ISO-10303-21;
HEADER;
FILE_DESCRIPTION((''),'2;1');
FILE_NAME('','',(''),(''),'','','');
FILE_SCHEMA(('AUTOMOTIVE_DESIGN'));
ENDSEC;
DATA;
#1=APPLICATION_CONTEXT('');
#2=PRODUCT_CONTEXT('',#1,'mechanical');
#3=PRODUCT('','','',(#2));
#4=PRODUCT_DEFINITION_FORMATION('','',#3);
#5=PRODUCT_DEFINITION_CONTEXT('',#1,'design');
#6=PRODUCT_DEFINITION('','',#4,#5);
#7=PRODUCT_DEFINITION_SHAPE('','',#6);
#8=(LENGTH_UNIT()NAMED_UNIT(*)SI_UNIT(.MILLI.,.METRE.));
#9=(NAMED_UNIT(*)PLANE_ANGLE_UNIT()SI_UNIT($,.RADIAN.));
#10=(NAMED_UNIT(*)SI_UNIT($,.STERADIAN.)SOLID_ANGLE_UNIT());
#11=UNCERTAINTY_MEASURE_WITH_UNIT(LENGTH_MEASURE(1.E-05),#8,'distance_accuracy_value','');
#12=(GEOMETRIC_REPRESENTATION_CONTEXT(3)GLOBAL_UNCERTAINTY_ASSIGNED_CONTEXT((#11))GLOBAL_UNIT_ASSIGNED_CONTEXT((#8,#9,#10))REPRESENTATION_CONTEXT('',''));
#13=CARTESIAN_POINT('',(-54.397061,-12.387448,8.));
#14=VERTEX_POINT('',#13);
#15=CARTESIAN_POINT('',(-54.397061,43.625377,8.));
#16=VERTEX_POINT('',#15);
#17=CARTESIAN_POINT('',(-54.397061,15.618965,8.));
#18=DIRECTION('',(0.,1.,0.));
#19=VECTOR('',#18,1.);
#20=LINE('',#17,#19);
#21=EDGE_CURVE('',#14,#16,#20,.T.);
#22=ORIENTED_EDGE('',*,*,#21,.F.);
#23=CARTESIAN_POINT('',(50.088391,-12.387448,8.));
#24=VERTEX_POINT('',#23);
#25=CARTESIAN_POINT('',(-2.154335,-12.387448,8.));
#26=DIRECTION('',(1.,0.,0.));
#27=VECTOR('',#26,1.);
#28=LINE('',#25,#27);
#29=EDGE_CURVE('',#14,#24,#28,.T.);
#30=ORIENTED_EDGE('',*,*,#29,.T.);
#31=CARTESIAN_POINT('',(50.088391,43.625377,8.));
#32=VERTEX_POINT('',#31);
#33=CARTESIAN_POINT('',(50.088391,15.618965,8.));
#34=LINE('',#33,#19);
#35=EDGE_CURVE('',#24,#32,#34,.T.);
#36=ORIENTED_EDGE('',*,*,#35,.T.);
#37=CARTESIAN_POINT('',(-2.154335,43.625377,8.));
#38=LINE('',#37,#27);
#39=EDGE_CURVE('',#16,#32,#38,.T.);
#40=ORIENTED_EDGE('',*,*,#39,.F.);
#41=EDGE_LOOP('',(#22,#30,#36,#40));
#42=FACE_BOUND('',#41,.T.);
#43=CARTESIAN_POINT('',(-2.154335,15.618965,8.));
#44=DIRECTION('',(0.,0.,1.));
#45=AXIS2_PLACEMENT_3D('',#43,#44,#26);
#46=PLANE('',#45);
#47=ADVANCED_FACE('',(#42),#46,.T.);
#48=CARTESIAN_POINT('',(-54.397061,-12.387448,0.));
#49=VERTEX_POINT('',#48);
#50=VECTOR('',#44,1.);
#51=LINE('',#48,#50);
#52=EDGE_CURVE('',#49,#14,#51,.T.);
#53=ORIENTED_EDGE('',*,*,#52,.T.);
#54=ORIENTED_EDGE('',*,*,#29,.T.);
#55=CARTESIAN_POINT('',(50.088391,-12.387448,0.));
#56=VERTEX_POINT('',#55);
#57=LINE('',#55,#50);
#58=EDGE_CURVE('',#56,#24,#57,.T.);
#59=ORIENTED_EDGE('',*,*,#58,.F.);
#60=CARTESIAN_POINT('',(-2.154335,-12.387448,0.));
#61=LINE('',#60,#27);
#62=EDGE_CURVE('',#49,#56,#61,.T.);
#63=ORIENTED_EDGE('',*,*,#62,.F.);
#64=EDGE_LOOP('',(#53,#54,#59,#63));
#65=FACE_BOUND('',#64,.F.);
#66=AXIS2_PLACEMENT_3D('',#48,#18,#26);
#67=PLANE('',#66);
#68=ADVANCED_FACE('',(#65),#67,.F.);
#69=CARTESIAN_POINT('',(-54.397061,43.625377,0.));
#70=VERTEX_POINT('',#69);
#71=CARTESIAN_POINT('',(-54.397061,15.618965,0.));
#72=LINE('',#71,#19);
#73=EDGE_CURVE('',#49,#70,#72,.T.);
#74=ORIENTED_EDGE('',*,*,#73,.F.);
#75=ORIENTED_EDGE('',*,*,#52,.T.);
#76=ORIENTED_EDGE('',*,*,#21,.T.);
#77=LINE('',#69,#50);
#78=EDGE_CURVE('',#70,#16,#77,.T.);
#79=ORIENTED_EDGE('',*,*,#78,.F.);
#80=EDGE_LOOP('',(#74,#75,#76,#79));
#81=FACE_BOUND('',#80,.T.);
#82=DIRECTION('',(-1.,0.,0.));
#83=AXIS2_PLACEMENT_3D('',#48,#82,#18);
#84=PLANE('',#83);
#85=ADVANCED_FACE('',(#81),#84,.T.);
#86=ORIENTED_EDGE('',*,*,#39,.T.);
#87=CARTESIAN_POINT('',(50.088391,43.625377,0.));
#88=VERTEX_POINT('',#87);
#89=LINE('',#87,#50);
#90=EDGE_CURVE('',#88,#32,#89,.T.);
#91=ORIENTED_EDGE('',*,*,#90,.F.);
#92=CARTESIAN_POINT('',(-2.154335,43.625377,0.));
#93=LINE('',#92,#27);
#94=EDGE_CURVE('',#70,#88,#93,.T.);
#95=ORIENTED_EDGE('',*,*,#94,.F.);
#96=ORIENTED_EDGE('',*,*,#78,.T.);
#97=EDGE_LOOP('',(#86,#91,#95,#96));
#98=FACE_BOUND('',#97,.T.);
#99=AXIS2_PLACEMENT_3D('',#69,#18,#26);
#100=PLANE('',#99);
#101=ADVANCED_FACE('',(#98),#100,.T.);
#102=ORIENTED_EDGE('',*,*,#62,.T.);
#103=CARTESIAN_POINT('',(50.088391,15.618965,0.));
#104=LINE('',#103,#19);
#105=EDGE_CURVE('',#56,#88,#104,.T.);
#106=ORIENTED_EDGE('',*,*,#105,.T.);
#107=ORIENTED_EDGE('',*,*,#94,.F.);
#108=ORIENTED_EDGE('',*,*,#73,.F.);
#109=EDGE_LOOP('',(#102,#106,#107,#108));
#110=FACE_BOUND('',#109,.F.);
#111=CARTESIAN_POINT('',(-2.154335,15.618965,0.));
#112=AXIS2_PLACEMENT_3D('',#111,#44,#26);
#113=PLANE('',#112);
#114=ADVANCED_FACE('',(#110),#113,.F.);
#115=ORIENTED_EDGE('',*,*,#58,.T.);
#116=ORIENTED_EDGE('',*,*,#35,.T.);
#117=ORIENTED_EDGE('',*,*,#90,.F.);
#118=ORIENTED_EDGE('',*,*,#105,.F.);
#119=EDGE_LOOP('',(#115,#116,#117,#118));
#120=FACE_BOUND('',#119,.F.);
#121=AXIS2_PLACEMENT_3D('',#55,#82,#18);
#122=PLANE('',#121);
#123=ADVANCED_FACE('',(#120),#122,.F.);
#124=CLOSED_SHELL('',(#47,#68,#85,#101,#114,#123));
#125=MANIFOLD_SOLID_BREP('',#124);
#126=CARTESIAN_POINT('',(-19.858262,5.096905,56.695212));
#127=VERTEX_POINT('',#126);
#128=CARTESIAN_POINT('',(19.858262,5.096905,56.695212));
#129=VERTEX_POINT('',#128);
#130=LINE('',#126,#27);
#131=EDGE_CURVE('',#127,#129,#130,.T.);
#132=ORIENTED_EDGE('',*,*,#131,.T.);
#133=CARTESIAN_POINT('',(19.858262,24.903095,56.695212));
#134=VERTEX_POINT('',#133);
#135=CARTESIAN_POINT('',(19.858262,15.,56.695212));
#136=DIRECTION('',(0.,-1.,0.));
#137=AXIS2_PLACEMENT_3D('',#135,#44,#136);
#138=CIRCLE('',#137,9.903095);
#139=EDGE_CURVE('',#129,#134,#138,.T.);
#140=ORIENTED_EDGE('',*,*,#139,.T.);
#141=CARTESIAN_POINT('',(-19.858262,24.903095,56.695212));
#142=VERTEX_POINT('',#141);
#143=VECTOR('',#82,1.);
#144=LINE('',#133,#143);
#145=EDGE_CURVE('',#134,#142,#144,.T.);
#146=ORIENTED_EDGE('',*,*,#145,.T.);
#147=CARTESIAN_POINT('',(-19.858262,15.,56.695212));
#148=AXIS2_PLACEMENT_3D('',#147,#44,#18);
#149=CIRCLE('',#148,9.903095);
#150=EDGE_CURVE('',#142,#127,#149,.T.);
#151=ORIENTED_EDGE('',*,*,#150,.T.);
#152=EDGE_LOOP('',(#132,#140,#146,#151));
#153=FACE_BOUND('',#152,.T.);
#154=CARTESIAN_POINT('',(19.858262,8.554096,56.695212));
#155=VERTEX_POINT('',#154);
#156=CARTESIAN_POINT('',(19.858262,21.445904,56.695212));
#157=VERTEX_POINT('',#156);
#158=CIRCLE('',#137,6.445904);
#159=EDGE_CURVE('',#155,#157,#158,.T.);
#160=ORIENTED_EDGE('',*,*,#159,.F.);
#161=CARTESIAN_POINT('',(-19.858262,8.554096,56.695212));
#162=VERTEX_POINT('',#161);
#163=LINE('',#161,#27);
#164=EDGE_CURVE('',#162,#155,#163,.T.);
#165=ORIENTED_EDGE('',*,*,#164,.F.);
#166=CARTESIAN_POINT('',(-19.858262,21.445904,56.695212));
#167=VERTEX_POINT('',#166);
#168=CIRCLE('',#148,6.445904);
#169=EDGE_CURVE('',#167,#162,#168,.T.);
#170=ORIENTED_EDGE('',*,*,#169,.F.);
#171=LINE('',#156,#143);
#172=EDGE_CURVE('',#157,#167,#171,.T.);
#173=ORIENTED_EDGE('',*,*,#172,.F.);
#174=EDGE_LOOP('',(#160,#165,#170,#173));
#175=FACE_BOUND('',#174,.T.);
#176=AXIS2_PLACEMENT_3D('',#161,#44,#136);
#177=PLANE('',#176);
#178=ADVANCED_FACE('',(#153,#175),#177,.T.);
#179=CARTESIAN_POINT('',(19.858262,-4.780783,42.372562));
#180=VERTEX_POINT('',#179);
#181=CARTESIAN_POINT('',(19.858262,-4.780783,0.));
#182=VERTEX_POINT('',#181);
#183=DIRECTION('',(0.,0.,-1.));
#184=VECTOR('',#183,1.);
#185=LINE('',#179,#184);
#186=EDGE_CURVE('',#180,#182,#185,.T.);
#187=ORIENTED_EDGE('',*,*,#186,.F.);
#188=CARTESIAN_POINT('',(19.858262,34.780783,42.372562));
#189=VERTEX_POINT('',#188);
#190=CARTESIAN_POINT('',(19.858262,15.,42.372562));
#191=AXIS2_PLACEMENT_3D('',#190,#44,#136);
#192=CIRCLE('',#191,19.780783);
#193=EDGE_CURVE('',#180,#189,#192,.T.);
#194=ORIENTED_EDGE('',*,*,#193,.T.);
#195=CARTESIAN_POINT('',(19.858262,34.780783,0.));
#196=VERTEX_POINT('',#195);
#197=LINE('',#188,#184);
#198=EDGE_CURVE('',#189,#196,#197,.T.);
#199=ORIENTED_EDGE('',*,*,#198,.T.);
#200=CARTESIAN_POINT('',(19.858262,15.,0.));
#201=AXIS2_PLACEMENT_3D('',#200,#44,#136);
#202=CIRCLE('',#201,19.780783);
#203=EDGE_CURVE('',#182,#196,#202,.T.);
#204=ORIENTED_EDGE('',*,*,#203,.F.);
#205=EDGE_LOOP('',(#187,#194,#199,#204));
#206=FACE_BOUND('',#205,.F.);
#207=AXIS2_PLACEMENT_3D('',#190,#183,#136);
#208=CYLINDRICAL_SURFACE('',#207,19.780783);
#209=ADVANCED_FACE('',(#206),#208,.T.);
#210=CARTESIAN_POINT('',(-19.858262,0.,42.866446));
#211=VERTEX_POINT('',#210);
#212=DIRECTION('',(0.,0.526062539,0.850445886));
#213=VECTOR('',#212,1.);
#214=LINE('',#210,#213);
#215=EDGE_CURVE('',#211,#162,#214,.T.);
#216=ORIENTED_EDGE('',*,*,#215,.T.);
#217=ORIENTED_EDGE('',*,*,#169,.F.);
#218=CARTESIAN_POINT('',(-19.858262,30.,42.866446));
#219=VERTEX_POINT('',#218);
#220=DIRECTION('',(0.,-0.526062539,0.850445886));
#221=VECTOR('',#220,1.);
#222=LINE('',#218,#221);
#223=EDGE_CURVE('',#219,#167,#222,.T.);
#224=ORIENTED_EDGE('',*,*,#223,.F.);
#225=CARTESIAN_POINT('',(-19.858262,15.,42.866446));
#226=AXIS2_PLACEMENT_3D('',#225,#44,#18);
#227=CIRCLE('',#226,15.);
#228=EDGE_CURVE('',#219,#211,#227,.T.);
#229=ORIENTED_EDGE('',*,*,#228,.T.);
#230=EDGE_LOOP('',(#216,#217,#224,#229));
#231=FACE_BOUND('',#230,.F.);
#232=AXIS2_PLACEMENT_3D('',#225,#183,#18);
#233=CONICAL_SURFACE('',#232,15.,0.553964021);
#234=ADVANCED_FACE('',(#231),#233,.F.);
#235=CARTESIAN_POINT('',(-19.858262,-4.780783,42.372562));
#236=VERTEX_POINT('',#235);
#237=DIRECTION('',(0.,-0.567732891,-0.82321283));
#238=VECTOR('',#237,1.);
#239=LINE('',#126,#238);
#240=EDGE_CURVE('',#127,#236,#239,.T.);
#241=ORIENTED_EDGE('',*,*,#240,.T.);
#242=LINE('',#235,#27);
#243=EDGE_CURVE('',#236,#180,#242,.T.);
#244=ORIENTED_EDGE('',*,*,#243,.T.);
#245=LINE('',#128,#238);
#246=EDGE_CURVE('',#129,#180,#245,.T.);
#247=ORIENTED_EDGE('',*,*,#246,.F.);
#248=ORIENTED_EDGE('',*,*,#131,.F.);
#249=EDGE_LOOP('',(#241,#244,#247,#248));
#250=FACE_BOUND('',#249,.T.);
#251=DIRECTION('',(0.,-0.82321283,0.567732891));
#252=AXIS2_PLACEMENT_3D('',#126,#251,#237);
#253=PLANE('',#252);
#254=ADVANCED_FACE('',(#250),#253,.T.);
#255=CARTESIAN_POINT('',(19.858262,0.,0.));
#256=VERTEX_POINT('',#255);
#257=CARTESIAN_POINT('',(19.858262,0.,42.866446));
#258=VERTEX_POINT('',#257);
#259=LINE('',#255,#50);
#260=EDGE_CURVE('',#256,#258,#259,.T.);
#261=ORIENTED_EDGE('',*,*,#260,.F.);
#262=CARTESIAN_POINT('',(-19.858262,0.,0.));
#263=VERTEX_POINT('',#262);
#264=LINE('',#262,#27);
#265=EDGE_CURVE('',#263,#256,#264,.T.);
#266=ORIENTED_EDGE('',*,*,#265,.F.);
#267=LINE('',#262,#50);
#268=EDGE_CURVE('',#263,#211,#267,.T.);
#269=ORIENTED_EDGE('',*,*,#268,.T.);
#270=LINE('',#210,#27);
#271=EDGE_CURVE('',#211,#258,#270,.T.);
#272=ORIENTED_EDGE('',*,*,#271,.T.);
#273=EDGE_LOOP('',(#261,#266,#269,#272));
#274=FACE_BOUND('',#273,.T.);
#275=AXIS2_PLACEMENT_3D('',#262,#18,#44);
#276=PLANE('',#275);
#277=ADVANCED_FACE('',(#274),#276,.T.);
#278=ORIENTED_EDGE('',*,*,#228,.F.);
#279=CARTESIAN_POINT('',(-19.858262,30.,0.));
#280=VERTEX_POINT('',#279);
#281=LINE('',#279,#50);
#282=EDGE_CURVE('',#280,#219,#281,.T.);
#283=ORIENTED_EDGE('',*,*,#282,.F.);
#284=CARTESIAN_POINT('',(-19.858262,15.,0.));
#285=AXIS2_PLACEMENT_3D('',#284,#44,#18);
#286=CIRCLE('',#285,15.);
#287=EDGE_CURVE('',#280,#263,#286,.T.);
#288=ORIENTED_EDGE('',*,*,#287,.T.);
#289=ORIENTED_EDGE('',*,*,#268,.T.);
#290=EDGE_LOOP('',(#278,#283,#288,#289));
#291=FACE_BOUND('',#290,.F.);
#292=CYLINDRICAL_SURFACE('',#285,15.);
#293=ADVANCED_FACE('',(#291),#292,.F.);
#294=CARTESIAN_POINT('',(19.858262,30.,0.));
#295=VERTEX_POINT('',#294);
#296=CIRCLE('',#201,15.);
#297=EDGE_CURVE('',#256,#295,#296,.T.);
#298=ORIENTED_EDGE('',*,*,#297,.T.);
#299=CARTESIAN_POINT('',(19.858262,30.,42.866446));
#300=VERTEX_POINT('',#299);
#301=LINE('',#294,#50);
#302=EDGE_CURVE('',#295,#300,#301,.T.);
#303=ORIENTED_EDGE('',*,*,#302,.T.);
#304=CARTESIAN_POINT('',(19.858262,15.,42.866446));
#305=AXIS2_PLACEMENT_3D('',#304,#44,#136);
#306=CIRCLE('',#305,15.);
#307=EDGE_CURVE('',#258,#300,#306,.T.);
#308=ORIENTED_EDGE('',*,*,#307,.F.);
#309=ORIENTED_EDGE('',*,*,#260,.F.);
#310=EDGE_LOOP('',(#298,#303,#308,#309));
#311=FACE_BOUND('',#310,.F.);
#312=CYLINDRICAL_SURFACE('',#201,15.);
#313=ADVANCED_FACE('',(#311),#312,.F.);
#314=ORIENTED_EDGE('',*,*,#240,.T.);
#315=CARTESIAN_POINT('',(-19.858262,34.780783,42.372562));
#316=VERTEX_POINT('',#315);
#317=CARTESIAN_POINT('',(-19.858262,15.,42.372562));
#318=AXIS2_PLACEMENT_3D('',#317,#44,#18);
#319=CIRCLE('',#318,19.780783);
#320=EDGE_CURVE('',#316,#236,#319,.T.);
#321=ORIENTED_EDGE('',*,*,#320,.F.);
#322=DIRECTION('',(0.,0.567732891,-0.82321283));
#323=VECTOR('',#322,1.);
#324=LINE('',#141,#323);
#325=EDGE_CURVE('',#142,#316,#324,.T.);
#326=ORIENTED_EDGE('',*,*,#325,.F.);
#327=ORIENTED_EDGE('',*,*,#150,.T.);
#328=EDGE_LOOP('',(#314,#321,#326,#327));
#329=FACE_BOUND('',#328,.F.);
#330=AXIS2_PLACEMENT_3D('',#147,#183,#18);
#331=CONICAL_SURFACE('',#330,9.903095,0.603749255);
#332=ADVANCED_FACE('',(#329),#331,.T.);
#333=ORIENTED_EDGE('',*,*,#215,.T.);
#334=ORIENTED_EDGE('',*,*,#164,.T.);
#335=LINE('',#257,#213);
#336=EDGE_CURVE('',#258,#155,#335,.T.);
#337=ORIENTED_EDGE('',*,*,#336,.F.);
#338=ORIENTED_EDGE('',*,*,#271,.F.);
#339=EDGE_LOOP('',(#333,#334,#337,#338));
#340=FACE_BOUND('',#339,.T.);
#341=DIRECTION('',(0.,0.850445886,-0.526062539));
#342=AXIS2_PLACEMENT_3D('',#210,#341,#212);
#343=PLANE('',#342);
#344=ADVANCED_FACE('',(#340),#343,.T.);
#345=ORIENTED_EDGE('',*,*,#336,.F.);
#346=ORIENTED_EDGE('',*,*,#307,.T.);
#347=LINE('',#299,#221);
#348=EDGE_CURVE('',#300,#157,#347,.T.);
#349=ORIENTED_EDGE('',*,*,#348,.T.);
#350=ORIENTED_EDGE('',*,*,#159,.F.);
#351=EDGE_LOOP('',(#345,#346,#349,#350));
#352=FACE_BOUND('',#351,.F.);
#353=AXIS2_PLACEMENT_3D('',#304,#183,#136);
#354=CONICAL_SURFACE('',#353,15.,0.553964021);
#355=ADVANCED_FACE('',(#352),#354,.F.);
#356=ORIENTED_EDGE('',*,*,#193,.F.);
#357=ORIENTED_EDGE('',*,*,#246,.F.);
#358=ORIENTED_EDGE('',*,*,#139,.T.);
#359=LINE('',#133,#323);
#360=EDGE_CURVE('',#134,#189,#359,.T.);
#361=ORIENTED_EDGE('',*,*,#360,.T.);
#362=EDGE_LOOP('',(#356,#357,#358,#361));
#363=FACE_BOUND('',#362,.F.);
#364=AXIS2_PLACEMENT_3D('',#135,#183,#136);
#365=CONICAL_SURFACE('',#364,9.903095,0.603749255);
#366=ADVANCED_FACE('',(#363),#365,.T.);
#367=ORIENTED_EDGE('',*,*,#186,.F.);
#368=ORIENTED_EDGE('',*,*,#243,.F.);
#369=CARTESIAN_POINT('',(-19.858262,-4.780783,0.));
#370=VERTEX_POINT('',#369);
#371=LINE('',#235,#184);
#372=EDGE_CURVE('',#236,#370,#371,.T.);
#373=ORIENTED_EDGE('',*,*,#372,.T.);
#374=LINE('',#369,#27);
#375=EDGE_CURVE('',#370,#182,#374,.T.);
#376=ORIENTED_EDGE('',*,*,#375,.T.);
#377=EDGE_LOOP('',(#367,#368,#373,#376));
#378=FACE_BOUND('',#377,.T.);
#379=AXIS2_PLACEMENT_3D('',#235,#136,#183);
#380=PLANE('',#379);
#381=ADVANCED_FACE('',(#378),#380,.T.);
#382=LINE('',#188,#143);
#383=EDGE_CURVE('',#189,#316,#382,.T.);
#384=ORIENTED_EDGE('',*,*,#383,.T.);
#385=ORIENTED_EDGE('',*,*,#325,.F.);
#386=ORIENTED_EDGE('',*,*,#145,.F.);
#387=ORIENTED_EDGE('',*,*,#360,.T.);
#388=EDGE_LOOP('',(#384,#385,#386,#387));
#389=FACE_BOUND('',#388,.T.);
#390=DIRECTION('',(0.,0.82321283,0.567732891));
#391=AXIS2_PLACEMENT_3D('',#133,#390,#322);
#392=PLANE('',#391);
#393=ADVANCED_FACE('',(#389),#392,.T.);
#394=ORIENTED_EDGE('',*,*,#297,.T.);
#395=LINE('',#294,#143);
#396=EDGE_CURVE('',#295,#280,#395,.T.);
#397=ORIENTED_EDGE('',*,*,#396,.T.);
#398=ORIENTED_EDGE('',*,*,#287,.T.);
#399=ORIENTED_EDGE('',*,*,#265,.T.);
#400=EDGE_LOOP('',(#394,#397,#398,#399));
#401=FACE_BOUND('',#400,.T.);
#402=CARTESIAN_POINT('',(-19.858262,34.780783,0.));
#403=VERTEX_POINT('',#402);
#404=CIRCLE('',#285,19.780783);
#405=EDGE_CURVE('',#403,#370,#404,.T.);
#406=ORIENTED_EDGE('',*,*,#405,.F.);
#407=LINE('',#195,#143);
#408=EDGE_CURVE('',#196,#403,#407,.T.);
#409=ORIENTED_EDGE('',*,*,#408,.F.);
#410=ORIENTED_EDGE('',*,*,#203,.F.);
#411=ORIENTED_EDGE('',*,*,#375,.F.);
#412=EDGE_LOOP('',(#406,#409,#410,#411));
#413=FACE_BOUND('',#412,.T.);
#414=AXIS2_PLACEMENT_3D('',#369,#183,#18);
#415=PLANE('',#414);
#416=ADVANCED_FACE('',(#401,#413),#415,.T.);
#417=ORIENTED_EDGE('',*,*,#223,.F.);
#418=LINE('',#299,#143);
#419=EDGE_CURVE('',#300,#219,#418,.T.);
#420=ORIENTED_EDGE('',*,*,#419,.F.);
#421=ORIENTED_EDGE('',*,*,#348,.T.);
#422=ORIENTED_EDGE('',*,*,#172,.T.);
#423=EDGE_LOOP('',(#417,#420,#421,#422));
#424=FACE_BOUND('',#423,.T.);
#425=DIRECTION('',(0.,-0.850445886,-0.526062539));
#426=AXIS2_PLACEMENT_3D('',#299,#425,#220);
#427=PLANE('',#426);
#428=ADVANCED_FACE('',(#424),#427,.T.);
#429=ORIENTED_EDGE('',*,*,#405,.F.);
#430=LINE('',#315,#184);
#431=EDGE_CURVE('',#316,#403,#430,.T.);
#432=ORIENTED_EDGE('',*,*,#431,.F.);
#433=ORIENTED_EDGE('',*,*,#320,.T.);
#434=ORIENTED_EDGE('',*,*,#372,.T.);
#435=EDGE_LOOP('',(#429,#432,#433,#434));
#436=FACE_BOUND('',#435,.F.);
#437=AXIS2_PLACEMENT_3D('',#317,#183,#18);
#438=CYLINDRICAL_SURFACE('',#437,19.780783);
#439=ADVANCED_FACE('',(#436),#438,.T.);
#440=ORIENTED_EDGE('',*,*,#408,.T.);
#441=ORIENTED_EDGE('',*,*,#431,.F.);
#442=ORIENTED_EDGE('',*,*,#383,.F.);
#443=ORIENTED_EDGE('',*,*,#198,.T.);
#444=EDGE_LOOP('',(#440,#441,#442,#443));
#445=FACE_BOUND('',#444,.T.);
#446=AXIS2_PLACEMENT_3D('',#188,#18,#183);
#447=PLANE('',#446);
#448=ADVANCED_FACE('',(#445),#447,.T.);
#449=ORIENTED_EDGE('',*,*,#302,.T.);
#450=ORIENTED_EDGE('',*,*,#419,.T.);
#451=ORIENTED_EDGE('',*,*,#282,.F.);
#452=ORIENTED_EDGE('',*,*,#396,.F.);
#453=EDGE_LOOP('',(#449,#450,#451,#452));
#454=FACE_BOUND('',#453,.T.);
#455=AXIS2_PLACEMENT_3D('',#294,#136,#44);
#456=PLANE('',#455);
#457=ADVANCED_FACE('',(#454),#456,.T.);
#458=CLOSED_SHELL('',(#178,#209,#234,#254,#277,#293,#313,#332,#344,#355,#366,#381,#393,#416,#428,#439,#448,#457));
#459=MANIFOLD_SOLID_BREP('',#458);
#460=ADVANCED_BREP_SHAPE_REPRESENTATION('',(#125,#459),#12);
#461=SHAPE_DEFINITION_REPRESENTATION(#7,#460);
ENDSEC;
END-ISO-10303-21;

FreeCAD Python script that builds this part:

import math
import FreeCAD as App
import Part
import Sketcher
from FreeCAD import Vector
Q = App.Units.Quantity

doc = App.newDocument("Part")
body = doc.addObject("PartDesign::Body", "Body")

sketch1 = body.newObject("Sketcher::SketchObject", "Sketch")
sketch1.AttachmentSupport = (doc.getObject("YZ_Plane"), [""])
sketch1.MapMode = "FlatFace"
sketch1.addGeometry([
    Part.LineSegment(Vector(0, 0, 0), Vector(0, 42.866446, 0)),
    Part.LineSegment(Vector(0, 42.866446, 0), Vector(8.554096, 56.695212, 0)),
    Part.LineSegment(Vector(8.554096, 56.695212, 0), Vector(5.096905, 56.695212, 0)),
    Part.LineSegment(Vector(5.096905, 56.695212, 0), Vector(-4.780783, 42.372562, 0)),
    Part.LineSegment(Vector(-4.780783, 42.372562, 0), Vector(-4.780783, 0, 0)),
    Part.LineSegment(Vector(-4.780783, 0, 0), Vector(0, 0, 0)),
], False)
sketch1.addConstraint([
    Sketcher.Constraint("Coincident", 0, 2, 1, 1),
    Sketcher.Constraint("Coincident", 1, 2, 2, 1),
    Sketcher.Constraint("Coincident", 2, 2, 3, 1),
    Sketcher.Constraint("Coincident", 3, 2, 4, 1),
    Sketcher.Constraint("Coincident", 4, 2, 5, 1),
    Sketcher.Constraint("Coincident", 5, 2, 0, 1),
    Sketcher.Constraint("Vertical", 0),
    Sketcher.Constraint("Horizontal", 2),
    Sketcher.Constraint("Vertical", 4),
    Sketcher.Constraint("Horizontal", 5),
    Sketcher.Constraint("Coincident", 5, 2, -1, 1),
    Sketcher.Constraint("DistanceX", 2, 2, 2, 1, Q("3.457191 mm")),
    Sketcher.Constraint("DistanceX", 5, 1, 5, 2, Q("4.780783 mm")),
    Sketcher.Constraint("DistanceY", 0, 1, 0, 2, Q("42.866446 mm")),
    Sketcher.Constraint("DistanceY", 4, 2, 4, 1, Q("42.372562 mm")),
    Sketcher.Constraint("DistanceY", -1, 1, 1, 2, Q("56.695212 mm")),
    Sketcher.Constraint("DistanceX", 3, 2, 1, 2, Q("13.334879 mm")),
])

sketch2 = body.newObject("Sketcher::SketchObject", "Sketch001")
sketch2.AttachmentSupport = (doc.getObject("XY_Plane"), [""])
sketch2.MapMode = "FlatFace"
sketch2.addGeometry([
    Part.LineSegment(Vector(-19.858262, 0, 0), Vector(19.858262, 0, 0)),
    Part.ArcOfCircle(Part.Circle(Vector(19.858262, 15, 0), Vector(0, 0, 1), 15), math.radians(-90), math.radians(90)),
    Part.LineSegment(Vector(19.858262, 30, 0), Vector(-19.858262, 30, 0)),
    Part.ArcOfCircle(Part.Circle(Vector(-19.858262, 15, 0), Vector(0, 0, 1), 15), math.radians(90), math.radians(270)),
], False)
sketch2.addConstraint([
    Sketcher.Constraint("Tangent", 0, 2, 1, 1),
    Sketcher.Constraint("Tangent", 1, 2, 2, 1),
    Sketcher.Constraint("Tangent", 2, 2, 3, 1),
    Sketcher.Constraint("Tangent", 3, 2, 0, 1),
    Sketcher.Constraint("Horizontal", 0),
    Sketcher.Constraint("Horizontal", 2),
    Sketcher.Constraint("Symmetric", 0, 2, 3, 2, -1, 1),
    Sketcher.Constraint("Radius", 1, Q("15 mm")),
    Sketcher.Constraint("DistanceX", 0, 1, 0, 2, Q("39.716524 mm")),
])
doc.recompute()

additivepipe = body.newObject("PartDesign::AdditivePipe", "AdditivePipe")
additivepipe.Profile = sketch1
additivepipe.Spine = (sketch2, ["Edge1", "Edge2", "Edge3", "Edge4"])
body2 = doc.addObject("PartDesign::Body", "Body001")

sketch3 = body2.newObject("Sketcher::SketchObject", "Sketch002")
sketch3.AttachmentSupport = (doc.getObject("XY_Plane001"), [""])
sketch3.MapMode = "FlatFace"
sketch3.addGeometry([
    Part.LineSegment(Vector(-54.397061, 43.625377, 0), Vector(-54.397061, -12.387448, 0)),
    Part.LineSegment(Vector(-54.397061, -12.387448, 0), Vector(50.088391, -12.387448, 0)),
    Part.LineSegment(Vector(50.088391, -12.387448, 0), Vector(50.088391, 43.625377, 0)),
    Part.LineSegment(Vector(50.088391, 43.625377, 0), Vector(-54.397061, 43.625377, 0)),
], False)
sketch3.addConstraint([
    Sketcher.Constraint("Coincident", 0, 2, 1, 1),
    Sketcher.Constraint("Coincident", 1, 2, 2, 1),
    Sketcher.Constraint("Coincident", 2, 2, 3, 1),
    Sketcher.Constraint("Coincident", 3, 2, 0, 1),
    Sketcher.Constraint("Vertical", 0),
    Sketcher.Constraint("Horizontal", 1),
    Sketcher.Constraint("Vertical", 2),
    Sketcher.Constraint("Horizontal", 3),
    Sketcher.Constraint("DistanceX", 1, 1, 1, 2, Q("104.485452 mm")),
    Sketcher.Constraint("DistanceY", 0, 2, 0, 1, Q("56.012825 mm")),
    Sketcher.Constraint("DistanceX", 0, 2, -1, 1, Q("54.397061 mm")),
    Sketcher.Constraint("DistanceY", 0, 2, -1, 1, Q("12.387448 mm")),
])
pad1 = body2.newObject("PartDesign::Pad", "Pad")
pad1.Profile = sketch3
pad1.Length = 8

doc.recompute()
